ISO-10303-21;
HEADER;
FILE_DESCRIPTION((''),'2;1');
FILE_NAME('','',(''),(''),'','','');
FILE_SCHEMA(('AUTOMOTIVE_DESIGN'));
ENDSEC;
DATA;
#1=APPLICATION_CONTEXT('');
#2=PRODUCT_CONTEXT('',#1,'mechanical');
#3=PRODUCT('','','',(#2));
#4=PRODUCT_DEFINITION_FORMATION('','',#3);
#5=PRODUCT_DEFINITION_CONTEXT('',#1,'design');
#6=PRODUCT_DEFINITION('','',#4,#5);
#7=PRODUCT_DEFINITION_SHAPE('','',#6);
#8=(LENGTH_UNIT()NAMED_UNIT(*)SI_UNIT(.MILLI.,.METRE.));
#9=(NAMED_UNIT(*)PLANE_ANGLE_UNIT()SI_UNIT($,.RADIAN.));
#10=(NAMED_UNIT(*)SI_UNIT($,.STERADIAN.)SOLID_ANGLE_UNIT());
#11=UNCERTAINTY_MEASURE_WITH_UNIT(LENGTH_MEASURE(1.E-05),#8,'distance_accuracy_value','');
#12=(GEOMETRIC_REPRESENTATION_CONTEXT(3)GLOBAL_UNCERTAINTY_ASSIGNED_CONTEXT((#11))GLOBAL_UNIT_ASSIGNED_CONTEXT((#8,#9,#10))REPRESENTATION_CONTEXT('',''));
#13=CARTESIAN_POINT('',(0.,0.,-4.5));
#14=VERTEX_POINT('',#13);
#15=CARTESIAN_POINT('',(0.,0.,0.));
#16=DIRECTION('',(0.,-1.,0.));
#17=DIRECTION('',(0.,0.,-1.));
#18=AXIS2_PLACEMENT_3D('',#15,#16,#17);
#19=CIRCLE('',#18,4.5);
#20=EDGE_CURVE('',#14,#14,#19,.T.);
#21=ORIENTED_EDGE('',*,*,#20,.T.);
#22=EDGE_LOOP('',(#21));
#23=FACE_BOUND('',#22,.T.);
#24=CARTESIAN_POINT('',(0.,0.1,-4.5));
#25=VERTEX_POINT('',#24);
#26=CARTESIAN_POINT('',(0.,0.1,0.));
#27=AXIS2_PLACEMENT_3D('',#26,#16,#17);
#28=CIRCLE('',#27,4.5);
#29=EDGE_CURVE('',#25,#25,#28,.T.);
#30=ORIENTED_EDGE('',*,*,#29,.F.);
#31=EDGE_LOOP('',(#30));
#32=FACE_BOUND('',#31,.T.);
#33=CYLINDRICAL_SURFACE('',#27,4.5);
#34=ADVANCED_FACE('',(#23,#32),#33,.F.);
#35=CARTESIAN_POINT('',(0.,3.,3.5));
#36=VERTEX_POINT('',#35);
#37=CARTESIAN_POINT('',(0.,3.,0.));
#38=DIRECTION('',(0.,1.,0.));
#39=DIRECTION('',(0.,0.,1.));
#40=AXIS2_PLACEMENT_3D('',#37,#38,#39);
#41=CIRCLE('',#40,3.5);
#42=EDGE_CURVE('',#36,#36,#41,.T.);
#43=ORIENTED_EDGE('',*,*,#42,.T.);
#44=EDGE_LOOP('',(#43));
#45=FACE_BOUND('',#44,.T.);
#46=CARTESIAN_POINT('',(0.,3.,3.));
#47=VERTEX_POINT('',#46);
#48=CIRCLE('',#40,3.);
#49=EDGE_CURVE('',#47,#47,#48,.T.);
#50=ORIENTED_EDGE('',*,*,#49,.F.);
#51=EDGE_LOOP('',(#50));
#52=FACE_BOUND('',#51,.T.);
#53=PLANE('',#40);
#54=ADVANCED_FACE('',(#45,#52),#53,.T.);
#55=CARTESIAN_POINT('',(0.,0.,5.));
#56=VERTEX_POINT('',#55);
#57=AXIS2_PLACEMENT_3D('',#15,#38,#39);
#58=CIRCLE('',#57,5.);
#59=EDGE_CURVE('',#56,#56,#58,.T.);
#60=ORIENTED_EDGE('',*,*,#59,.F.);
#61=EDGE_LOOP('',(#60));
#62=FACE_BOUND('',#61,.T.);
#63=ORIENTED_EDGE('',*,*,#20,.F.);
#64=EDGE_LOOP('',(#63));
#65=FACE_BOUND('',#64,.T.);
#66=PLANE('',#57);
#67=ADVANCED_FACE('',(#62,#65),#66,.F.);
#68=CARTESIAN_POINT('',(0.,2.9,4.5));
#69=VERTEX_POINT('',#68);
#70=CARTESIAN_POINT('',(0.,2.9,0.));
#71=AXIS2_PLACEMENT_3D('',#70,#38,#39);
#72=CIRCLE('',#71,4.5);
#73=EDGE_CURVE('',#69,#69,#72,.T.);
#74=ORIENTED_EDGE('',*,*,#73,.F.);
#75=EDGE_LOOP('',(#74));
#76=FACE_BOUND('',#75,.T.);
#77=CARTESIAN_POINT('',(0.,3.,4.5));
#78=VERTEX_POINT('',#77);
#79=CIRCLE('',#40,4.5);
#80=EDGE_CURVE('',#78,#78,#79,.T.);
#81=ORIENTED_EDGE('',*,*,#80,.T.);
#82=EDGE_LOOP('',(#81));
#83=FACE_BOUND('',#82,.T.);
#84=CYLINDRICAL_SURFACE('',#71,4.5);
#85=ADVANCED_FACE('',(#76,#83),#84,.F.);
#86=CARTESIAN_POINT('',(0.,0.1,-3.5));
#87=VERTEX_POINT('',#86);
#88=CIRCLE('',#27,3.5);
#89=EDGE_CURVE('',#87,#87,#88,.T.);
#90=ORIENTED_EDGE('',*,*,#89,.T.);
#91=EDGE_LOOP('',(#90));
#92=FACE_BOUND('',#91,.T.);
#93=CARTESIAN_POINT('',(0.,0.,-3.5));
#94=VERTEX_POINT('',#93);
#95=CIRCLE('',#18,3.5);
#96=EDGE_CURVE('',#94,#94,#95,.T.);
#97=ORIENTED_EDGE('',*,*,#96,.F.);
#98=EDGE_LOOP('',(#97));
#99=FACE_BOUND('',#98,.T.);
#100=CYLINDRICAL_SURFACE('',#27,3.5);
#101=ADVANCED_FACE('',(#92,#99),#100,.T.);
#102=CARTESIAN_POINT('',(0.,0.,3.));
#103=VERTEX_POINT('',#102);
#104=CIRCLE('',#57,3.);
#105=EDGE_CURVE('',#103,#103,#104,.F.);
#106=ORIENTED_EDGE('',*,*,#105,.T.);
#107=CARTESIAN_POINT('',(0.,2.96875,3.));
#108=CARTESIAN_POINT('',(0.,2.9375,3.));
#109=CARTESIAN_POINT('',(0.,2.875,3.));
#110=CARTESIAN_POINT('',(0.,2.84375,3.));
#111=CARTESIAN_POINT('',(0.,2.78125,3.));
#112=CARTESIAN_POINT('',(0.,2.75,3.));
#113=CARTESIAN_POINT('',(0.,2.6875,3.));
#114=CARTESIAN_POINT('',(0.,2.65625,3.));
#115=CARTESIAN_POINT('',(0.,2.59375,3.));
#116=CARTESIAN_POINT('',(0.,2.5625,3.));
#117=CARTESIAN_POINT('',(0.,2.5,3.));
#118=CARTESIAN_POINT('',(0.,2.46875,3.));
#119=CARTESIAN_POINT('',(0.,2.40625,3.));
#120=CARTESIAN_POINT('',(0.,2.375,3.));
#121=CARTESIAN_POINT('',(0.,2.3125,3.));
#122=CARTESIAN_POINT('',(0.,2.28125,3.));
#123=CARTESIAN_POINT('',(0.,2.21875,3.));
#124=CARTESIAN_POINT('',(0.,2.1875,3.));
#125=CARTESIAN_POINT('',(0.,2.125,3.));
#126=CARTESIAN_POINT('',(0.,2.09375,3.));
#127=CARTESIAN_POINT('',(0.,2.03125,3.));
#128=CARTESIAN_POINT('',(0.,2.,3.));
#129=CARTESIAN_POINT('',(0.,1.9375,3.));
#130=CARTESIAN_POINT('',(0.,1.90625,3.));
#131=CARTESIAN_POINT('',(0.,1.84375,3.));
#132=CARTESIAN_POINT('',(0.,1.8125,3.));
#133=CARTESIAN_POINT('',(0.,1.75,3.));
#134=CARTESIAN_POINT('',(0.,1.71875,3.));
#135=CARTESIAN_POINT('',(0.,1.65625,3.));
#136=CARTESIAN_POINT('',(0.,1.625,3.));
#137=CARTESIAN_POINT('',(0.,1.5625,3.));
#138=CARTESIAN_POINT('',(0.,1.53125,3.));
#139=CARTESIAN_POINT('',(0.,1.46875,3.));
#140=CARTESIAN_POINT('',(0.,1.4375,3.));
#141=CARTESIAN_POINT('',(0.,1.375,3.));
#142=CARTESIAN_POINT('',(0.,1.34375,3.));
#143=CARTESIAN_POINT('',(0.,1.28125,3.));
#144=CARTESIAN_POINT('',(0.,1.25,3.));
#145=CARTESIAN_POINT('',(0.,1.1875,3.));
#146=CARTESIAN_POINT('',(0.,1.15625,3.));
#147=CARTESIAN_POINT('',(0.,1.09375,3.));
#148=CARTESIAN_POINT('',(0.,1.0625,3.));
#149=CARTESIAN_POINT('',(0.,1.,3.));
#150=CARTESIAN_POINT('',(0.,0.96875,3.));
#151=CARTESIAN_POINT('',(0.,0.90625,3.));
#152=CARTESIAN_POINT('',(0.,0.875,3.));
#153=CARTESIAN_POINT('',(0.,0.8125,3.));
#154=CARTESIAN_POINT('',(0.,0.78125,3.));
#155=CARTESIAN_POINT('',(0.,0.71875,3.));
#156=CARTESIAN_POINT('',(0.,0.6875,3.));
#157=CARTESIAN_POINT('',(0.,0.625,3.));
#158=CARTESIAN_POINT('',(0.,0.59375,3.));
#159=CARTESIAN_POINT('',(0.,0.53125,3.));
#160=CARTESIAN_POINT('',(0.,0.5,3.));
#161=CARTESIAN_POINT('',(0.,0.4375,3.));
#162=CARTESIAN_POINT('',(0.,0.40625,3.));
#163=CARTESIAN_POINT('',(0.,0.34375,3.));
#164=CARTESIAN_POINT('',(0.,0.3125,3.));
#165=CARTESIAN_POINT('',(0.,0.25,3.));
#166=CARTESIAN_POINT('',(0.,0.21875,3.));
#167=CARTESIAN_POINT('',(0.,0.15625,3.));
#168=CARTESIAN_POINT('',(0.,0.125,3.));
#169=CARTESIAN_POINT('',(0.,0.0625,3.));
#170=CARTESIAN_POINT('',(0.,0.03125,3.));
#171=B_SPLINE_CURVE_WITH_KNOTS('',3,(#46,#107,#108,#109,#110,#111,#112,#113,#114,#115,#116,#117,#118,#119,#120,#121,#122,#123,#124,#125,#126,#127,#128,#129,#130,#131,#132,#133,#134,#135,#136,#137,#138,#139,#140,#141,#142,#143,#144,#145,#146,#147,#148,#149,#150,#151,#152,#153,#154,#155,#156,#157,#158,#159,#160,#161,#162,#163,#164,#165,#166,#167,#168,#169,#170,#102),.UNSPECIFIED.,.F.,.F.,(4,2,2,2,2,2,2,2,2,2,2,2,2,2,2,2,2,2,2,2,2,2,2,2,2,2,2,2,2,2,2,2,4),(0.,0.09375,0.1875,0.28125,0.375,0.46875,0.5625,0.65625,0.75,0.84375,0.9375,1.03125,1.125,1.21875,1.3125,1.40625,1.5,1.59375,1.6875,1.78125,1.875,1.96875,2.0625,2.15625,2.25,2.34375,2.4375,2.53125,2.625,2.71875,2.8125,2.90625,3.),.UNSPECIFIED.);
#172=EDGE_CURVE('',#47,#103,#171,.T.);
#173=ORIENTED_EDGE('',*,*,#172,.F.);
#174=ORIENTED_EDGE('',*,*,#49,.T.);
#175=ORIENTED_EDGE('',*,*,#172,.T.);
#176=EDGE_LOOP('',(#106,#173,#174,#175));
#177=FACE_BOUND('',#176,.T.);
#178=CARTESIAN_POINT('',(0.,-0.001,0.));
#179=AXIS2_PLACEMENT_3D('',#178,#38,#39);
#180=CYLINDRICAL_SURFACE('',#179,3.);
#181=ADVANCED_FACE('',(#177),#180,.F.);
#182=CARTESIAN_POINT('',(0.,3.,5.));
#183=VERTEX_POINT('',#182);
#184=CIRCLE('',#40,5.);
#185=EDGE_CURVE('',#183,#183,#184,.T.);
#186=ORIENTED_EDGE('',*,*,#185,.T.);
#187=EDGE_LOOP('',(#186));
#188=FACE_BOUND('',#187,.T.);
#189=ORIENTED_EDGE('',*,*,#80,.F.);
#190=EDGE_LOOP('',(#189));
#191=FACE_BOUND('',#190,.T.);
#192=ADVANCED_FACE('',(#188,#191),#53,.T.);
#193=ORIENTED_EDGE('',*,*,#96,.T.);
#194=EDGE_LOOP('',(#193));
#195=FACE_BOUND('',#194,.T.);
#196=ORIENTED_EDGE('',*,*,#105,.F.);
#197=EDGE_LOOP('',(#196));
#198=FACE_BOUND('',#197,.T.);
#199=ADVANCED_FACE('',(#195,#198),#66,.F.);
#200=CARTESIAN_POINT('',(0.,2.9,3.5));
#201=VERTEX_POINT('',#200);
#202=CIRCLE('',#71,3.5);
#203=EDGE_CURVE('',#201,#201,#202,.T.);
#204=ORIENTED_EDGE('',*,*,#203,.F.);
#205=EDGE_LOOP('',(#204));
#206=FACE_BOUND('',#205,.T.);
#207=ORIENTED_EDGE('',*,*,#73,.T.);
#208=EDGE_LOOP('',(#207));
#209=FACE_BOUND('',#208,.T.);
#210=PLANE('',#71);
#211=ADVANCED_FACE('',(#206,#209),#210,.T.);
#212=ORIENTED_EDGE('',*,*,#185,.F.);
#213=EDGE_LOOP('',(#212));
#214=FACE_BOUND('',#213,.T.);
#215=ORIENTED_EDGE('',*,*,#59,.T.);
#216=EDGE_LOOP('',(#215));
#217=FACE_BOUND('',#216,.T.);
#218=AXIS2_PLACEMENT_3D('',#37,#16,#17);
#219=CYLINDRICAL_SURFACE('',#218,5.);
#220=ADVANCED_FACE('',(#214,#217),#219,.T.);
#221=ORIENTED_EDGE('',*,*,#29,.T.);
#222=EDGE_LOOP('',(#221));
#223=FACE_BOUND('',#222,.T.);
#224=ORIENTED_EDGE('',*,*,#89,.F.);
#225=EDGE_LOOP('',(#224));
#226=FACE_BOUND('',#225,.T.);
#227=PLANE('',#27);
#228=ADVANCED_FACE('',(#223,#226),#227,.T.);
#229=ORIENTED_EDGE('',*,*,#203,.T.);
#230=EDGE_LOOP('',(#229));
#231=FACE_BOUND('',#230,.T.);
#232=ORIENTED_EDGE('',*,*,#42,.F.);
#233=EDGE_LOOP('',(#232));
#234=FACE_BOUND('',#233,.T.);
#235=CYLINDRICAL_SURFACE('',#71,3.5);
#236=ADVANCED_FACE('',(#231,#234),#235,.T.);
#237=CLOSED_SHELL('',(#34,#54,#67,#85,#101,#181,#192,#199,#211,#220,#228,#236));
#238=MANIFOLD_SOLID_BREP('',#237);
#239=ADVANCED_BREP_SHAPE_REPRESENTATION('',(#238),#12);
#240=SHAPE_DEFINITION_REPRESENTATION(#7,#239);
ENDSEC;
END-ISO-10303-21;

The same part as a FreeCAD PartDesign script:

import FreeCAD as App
import Part
import Sketcher
Q = App.Units.Quantity

doc = App.newDocument("Part")
body = doc.addObject("PartDesign::Body", "Body")

sketch1 = body.newObject("Sketcher::SketchObject", "Sketch")
sketch1.AttachmentSupport = (doc.getObject("XZ_Plane"), [""])
sketch1.MapMode = "FlatFace"
sketch1.addGeometry(Part.Circle(App.Vector(0, 0, 0), App.Vector(0, 0, 1), 5), False)
sketch1.addConstraint([
    Sketcher.Constraint("Coincident", 0, 3, -1, 1),
    Sketcher.Constraint("Diameter", 0, Q("10 mm")),
])
pad1 = body.newObject("PartDesign::Pad", "Pad")
pad1.Profile = sketch1
pad1.Length = 3
pad1.Reversed = True

sketch2 = body.newObject("Sketcher::SketchObject", "Sketch001")
sketch2.AttachmentSupport = (doc.getObject("XZ_Plane"), [""])
sketch2.MapMode = "FlatFace"
sketch2.AttachmentOffset = App.Placement(App.Vector(0, 0, -3), App.Rotation())
sketch2.addGeometry(Part.Circle(App.Vector(0, 0, 0), App.Vector(0, 0, 1), 3), False)
sketch2.addConstraint([
    Sketcher.Constraint("Coincident", 0, 3, -1, 1),
    Sketcher.Constraint("Diameter", 0, Q("6 mm")),
])
pocket1 = body.newObject("PartDesign::Pocket", "Pocket")
pocket1.Profile = sketch2
pocket1.Type = "UpToFirst"
pocket1.Reversed = True

sketch3 = body.newObject("Sketcher::SketchObject", "Sketch002")
sketch3.AttachmentSupport = (doc.getObject("XZ_Plane"), [""])
sketch3.MapMode = "FlatFace"
sketch3.AttachmentOffset = App.Placement(App.Vector(0, 0, -3), App.Rotation())
sketch3.addGeometry([
    Part.Circle(App.Vector(0, 0, 0), App.Vector(0, 0, 1), 4.5),
    Part.Circle(App.Vector(0, 0, 0), App.Vector(0, 0, 1), 3.5),
], False)
sketch3.addConstraint([
    Sketcher.Constraint("Coincident", 0, 3, -1, 1),
    Sketcher.Constraint("Coincident", 1, 3, -1, 1),
    Sketcher.Constraint("Diameter", 0, Q("9 mm")),
    Sketcher.Constraint("Diameter", 1, Q("7 mm")),
])
pocket2 = body.newObject("PartDesign::Pocket", "Pocket001")
pocket2.Profile = sketch3
pocket2.Length = 0.1
pocket2.Reversed = True

sketch4 = body.newObject("Sketcher::SketchObject", "Sketch003")
sketch4.AttachmentSupport = (doc.getObject("XZ_Plane"), [""])
sketch4.MapMode = "FlatFace"
sketch4.AttachmentOffset = App.Placement(App.Vector(0, 0, -0.1), App.Rotation())
sketch4.addGeometry([
    Part.Circle(App.Vector(0, 0, 0), App.Vector(0, 0, 1), 4.5),
    Part.Circle(App.Vector(0, 0, 0), App.Vector(0, 0, 1), 3.5),
], False)
sketch4.addConstraint([
    Sketcher.Constraint("Coincident", 0, 3, -1, 1),
    Sketcher.Constraint("Coincident", 1, 3, -1, 1),
    Sketcher.Constraint("Diameter", 0, Q("9 mm")),
    Sketcher.Constraint("Diameter", 1, Q("7 mm")),
])
pocket3 = body.newObject("PartDesign::Pocket", "Pocket002")
pocket3.Profile = sketch4
pocket3.Length = 0.1
pocket3.Reversed = True

doc.recompute()
